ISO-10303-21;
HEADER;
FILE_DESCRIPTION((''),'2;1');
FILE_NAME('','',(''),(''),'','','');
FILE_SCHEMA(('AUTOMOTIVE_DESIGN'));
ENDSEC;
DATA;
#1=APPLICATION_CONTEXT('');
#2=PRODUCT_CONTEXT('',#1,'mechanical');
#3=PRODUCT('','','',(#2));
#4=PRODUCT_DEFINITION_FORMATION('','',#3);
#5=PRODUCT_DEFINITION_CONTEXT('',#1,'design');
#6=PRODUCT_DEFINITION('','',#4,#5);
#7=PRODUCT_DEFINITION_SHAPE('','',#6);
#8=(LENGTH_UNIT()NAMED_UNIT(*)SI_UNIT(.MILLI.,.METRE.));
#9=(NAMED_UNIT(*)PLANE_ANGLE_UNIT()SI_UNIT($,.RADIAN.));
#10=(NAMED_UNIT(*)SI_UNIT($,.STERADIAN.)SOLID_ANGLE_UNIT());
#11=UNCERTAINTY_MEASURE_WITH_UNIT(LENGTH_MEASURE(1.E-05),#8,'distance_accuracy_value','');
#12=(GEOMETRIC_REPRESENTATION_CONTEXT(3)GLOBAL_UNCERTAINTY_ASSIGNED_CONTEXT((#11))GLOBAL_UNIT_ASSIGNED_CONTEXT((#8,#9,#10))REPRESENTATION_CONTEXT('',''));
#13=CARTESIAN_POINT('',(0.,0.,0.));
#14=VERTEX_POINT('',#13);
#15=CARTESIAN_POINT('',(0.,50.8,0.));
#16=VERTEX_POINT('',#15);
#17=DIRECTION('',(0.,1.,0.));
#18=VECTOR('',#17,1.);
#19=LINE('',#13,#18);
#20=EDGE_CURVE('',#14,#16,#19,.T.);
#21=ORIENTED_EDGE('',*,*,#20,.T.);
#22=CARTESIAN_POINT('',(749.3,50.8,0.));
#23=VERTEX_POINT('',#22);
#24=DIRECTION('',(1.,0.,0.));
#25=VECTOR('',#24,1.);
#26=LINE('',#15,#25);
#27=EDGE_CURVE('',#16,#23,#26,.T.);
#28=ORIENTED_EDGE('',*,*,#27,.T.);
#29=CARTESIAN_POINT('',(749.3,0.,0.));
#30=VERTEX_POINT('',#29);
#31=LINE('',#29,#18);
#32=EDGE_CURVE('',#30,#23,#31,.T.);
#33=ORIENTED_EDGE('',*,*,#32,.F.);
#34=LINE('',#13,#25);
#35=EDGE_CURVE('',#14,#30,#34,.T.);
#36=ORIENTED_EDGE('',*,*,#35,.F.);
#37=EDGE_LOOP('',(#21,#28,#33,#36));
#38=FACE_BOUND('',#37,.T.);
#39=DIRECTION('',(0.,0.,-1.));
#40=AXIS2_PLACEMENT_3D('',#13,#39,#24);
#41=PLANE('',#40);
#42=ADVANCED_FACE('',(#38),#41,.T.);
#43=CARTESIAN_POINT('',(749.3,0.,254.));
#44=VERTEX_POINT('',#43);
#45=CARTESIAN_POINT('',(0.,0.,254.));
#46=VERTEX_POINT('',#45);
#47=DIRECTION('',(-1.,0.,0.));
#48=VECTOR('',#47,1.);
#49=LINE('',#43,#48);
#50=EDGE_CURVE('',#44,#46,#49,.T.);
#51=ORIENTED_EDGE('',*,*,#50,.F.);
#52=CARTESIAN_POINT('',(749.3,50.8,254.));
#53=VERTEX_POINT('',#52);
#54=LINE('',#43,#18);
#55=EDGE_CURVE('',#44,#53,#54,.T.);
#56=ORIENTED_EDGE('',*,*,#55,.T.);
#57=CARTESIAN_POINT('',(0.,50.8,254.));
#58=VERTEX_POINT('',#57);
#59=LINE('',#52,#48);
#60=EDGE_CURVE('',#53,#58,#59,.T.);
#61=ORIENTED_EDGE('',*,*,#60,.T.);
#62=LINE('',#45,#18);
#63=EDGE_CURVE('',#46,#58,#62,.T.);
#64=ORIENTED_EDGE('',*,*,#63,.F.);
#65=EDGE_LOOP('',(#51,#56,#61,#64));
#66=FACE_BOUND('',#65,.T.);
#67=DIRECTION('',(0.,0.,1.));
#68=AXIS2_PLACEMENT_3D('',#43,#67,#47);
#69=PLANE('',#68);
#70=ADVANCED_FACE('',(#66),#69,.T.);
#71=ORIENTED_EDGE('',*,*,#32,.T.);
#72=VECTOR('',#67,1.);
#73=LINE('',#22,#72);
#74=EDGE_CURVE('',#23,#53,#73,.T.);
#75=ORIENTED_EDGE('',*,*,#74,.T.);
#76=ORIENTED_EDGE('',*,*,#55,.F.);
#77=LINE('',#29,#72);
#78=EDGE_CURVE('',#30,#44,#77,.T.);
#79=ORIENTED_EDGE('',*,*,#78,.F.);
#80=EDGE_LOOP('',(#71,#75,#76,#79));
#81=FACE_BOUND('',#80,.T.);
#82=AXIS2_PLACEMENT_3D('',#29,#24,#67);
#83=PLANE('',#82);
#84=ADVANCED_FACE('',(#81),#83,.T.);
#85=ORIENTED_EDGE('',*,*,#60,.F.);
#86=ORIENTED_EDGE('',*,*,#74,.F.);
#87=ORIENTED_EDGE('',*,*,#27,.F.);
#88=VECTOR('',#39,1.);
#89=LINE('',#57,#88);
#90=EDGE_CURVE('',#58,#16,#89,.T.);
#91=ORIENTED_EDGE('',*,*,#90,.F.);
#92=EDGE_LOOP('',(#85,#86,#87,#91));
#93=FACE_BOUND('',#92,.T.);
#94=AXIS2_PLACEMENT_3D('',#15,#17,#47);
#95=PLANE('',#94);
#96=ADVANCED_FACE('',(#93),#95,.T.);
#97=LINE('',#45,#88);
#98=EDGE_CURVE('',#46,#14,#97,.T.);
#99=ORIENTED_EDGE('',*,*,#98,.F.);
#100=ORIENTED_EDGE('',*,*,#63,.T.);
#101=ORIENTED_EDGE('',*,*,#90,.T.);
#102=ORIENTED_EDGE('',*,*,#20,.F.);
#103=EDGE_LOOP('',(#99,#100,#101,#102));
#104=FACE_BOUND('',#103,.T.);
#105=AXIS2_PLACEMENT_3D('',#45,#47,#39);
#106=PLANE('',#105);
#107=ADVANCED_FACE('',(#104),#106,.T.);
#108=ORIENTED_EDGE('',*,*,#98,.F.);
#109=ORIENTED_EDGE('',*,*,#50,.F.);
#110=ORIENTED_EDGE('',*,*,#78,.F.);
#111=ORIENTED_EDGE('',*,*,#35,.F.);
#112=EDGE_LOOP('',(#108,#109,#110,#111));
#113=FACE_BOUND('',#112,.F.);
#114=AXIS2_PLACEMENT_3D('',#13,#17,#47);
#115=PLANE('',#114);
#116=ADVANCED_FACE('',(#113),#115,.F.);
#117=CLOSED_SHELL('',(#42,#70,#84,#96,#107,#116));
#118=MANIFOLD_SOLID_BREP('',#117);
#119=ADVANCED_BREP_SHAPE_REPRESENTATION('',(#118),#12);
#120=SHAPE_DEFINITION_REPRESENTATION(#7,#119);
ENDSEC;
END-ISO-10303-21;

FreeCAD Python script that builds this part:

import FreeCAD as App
import Part
import Sketcher
Q = App.Units.Quantity

doc = App.newDocument("Part")
body = doc.addObject("PartDesign::Body", "Body")

sketch1 = body.newObject("Sketcher::SketchObject", "Sketch")
sketch1.AttachmentSupport = (doc.getObject("XZ_Plane"), [""])
sketch1.MapMode = "FlatFace"
sketch1.addGeometry([
    Part.LineSegment(App.Vector(749, 0, 0), App.Vector(0, 0, 0)),
    Part.LineSegment(App.Vector(0, 0, 0), App.Vector(0, 254, 0)),
    Part.LineSegment(App.Vector(0, 254, 0), App.Vector(749, 254, 0)),
    Part.LineSegment(App.Vector(749, 254, 0), App.Vector(749, 0, 0)),
], False)
sketch1.addConstraint([
    Sketcher.Constraint("Coincident", 0, 2, 1, 1),
    Sketcher.Constraint("Coincident", 1, 2, 2, 1),
    Sketcher.Constraint("Coincident", 2, 2, 3, 1),
    Sketcher.Constraint("Coincident", 3, 2, 0, 1),
    Sketcher.Constraint("Horizontal", 0),
    Sketcher.Constraint("Vertical", 1),
    Sketcher.Constraint("Horizontal", 2),
    Sketcher.Constraint("Vertical", 3),
    Sketcher.Constraint("Coincident", 0, 2, -1, 1),
    Sketcher.Constraint("DistanceY", 1, 1, 1, 2, Q("10 in")),
    Sketcher.Constraint("DistanceX", 0, 2, 0, 1, Q("29.5 in")),
])
pad1 = body.newObject("PartDesign::Pad", "Pad")
pad1.Profile = sketch1
pad1.Length = Q("2 in")
pad1.Reversed = True

doc.recompute()
